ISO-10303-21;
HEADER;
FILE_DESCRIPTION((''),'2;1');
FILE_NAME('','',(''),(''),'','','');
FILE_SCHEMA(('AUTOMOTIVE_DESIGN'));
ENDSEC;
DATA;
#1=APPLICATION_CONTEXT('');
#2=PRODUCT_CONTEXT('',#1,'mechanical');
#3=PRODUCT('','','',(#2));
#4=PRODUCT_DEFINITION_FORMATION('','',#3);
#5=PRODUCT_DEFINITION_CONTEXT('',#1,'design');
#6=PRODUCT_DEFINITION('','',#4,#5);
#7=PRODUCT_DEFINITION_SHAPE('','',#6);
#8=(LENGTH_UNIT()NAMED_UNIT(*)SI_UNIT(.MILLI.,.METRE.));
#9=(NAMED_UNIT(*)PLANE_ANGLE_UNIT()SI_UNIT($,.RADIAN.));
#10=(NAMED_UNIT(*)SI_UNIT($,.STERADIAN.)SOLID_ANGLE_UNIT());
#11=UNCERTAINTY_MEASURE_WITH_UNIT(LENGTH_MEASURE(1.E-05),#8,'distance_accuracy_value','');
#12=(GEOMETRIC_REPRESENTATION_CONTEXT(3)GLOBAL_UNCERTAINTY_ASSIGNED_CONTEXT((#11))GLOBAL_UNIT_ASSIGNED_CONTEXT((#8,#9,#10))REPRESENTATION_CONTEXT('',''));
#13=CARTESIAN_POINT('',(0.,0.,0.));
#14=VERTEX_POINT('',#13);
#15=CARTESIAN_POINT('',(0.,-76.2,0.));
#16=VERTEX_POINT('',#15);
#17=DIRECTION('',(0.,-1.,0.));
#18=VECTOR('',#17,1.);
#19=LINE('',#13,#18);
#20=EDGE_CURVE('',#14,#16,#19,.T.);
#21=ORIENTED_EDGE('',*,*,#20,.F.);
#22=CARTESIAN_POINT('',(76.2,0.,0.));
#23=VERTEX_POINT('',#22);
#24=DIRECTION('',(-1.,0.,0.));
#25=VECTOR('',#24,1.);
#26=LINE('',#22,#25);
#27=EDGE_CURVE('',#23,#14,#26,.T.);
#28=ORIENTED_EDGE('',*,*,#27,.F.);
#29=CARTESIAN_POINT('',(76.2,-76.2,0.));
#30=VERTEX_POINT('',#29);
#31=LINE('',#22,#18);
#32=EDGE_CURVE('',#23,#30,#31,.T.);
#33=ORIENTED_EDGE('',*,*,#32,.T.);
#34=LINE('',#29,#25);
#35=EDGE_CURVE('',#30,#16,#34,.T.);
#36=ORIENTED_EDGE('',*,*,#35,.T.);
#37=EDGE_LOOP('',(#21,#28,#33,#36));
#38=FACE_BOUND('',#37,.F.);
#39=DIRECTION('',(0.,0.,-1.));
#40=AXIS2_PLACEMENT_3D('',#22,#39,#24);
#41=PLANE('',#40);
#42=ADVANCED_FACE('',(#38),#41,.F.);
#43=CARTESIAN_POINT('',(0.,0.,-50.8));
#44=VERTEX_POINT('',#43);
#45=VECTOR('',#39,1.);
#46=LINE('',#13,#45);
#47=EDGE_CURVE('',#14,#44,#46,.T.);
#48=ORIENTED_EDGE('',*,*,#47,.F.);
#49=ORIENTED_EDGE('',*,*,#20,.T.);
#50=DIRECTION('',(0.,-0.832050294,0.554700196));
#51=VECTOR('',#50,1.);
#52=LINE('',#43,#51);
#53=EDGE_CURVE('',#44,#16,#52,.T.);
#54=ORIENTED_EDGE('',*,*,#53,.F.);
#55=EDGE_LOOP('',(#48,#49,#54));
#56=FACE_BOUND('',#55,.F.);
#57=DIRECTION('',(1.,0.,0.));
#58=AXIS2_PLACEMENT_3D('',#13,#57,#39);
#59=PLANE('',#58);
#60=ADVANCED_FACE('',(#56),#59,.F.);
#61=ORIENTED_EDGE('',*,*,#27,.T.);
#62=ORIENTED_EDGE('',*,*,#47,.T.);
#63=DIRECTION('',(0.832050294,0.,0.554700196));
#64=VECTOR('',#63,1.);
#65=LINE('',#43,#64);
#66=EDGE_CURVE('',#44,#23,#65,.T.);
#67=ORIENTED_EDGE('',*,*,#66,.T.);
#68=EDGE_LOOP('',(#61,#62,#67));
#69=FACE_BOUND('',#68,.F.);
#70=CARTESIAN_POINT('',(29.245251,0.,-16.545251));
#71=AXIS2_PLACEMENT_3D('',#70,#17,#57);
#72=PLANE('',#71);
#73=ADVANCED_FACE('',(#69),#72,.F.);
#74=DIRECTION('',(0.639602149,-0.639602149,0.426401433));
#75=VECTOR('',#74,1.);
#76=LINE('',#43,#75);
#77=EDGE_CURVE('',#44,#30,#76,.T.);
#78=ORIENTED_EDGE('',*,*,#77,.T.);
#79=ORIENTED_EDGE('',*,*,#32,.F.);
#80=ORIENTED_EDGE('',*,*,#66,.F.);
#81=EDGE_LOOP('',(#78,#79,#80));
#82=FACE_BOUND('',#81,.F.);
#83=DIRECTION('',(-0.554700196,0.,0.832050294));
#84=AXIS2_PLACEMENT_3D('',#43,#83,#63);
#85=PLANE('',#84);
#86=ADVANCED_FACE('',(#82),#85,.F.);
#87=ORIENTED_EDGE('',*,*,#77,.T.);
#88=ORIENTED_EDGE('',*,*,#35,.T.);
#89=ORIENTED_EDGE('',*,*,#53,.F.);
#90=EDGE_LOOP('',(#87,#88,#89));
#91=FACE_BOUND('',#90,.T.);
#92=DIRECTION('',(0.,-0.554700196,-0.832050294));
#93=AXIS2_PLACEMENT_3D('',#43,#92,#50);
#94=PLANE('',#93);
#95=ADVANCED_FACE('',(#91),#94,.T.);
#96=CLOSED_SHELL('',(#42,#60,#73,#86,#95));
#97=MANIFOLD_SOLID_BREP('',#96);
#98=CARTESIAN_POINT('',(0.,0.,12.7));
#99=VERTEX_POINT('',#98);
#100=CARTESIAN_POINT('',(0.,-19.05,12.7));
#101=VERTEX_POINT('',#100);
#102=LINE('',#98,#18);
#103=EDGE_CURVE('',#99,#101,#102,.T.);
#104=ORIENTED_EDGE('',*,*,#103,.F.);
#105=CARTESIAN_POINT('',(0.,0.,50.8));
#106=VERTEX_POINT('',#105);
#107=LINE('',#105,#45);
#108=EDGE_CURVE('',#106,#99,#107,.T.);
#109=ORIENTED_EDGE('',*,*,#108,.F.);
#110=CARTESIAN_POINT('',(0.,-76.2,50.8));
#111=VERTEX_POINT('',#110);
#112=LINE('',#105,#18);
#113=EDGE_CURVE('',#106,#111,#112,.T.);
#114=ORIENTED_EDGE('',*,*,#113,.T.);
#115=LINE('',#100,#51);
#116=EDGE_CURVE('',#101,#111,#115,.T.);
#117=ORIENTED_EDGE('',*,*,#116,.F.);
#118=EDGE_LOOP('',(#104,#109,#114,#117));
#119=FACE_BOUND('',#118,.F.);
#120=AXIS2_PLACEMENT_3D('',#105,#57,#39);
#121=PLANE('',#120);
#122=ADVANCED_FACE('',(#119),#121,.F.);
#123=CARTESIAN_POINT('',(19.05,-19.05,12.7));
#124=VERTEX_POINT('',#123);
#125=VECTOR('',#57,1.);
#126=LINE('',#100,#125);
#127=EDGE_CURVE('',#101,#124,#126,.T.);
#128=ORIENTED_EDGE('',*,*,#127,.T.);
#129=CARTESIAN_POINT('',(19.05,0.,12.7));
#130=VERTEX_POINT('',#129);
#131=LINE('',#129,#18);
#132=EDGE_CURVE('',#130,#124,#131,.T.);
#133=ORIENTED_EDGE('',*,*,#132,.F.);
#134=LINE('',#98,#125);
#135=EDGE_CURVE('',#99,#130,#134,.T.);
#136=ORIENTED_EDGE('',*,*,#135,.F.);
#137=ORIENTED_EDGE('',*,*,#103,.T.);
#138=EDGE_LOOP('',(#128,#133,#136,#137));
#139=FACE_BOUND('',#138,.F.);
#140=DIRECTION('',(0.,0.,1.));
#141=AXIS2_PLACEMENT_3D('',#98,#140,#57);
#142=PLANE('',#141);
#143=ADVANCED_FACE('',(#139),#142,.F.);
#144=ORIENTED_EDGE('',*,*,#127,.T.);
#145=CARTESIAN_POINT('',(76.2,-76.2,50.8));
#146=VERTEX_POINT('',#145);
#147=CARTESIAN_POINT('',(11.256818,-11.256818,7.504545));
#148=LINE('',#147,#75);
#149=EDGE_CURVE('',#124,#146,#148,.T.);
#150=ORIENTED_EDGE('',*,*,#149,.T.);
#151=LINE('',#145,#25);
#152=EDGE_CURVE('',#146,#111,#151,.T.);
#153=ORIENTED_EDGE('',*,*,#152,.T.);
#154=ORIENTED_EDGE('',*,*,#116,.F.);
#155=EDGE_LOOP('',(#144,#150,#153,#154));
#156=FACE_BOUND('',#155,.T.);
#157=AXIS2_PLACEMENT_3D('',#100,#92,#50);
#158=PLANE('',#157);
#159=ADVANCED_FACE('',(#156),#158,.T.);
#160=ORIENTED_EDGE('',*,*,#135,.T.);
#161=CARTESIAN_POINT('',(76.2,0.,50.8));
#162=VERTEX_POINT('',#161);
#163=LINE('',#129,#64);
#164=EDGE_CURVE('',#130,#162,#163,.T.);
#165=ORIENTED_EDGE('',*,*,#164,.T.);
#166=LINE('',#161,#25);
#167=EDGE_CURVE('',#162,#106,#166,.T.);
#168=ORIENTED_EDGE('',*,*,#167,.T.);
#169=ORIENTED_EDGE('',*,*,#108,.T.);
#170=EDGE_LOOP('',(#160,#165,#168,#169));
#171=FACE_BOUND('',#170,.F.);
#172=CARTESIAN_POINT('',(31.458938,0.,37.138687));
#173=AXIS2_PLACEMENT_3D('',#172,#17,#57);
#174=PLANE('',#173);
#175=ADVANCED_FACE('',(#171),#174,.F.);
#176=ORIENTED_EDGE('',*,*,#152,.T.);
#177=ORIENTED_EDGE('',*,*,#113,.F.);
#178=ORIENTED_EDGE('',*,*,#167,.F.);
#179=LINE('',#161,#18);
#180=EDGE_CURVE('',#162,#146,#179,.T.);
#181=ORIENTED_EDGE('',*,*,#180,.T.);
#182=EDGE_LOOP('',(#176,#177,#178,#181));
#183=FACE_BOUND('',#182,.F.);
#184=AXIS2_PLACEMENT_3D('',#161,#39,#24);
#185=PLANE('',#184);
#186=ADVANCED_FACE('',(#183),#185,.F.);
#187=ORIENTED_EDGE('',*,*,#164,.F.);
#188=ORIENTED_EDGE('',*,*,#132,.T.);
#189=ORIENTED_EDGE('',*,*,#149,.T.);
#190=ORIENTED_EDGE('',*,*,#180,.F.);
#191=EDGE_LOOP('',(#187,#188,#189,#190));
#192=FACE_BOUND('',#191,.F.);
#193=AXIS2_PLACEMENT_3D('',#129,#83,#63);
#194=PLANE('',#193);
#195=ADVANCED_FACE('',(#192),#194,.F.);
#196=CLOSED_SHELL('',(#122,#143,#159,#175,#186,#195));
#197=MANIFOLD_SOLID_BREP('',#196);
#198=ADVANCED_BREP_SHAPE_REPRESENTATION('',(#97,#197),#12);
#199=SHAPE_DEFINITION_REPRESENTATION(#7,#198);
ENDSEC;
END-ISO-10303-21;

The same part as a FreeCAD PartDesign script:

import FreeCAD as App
import Part
import Sketcher
from FreeCAD import Vector
Q = App.Units.Quantity

doc = App.newDocument("Part")
params = doc.addObject("Spreadsheet::Sheet", "Params")
for row, (alias, value) in enumerate([
    ("sketch1_width", "3 in"),
    ("sketch1_height", "1.5 in"),
    ("sketch1_width2", "0.75 in"),
    ("pad1_length", "3 in"),
    ("sketch2_width", "3 in"),
    ("sketch2_height", "2 in"),
    ("pad2_length", "3 in"),
    ("sketch3_width", "3 in"),
    ("sketch3_height", "2 in"),
    ("sketch3_height2", "1.5 in"),
    ("pad3_length", "76.201 mm"),
], start=1):
    params.set(f"A{row}", alias)
    params.set(f"B{row}", "=" + value)
    params.setAlias(f"B{row}", alias)

body = doc.addObject("PartDesign::Body", "Body")

# Sketch on XZ plane
sketch1 = body.newObject("Sketcher::SketchObject", "Sketch")
sketch1.AttachmentSupport = (doc.getObject("XZ_Plane"), [""])
sketch1.MapMode = "FlatFace"
sketch1.addGeometry([
    Part.LineSegment(Vector(19, 13, 0), Vector(76, 51, 0)),
    Part.LineSegment(Vector(76, 51, 0), Vector(0, 51, 0)),
    Part.LineSegment(Vector(0, 51, 0), Vector(0, 13, 0)),
    Part.LineSegment(Vector(0, 13, 0), Vector(19, 13, 0)),
], False)
sketch1.addConstraint([
    Sketcher.Constraint("Coincident", 0, 2, 1, 1),
    Sketcher.Constraint("Coincident", 1, 2, 2, 1),
    Sketcher.Constraint("Coincident", 2, 2, 3, 1),
    Sketcher.Constraint("Coincident", 3, 2, 0, 1),
    Sketcher.Constraint("Horizontal", 1),
    Sketcher.Constraint("Vertical", 2),
    Sketcher.Constraint("Horizontal", 3),
    Sketcher.Constraint("PointOnObject", 1, 2, -2),
    Sketcher.Constraint("DistanceX", 1, 2, 1, 1, Q("3 in")),
    Sketcher.Constraint("DistanceY", 2, 2, 2, 1, Q("1.5 in")),
    Sketcher.Constraint("DistanceY", -1, 1, 0, 2, Q("2 in")),
    Sketcher.Constraint("DistanceX", 3, 1, 3, 2, Q("0.75 in")),
])
sketch1.setExpression("Constraints[8]", "Params.sketch1_width")
sketch1.setExpression("Constraints[9]", "Params.sketch1_height")
sketch1.setExpression("Constraints[11]", "Params.sketch1_width2")
pad1 = body.newObject("PartDesign::Pad", "Pad")
pad1.Profile = sketch1
pad1.setExpression("Length", "Params.pad1_length")
body2 = doc.addObject("PartDesign::Body", "Body001")

# Sketch on XZ plane
sketch2 = body2.newObject("Sketcher::SketchObject", "Sketch001")
sketch2.AttachmentSupport = (doc.getObject("XZ_Plane001"), [""])
sketch2.MapMode = "FlatFace"
sketch2.addGeometry([
    Part.LineSegment(Vector(0, 0, 0), Vector(0, -51, 0)),
    Part.LineSegment(Vector(0, -51, 0), Vector(76, 0, 0)),
    Part.LineSegment(Vector(76, 0, 0), Vector(0, 0, 0)),
], False)
sketch2.addConstraint([
    Sketcher.Constraint("Coincident", 0, 2, 1, 1),
    Sketcher.Constraint("Coincident", 1, 2, 2, 1),
    Sketcher.Constraint("Coincident", 2, 2, 0, 1),
    Sketcher.Constraint("Vertical", 0),
    Sketcher.Constraint("Horizontal", 2),
    Sketcher.Constraint("Coincident", 2, 2, -1, 1),
    Sketcher.Constraint("DistanceX", 2, 2, 2, 1, Q("3 in")),
    Sketcher.Constraint("DistanceY", 0, 2, 0, 1, Q("2 in")),
])
sketch2.setExpression("Constraints[6]", "Params.sketch2_width")
sketch2.setExpression("Constraints[7]", "Params.sketch2_height")
pad2 = body2.newObject("PartDesign::Pad", "Pad001")
pad2.Profile = sketch2
pad2.setExpression("Length", "Params.pad2_length")
body3 = doc.addObject("PartDesign::Body", "Body002")
body3.AllowCompound = True

# Sketch on YZ plane
sketch3 = body3.newObject("Sketcher::SketchObject", "Sketch002")
sketch3.AttachmentSupport = (doc.getObject("YZ_Plane002"), [""])
sketch3.MapMode = "FlatFace"
sketch3.addGeometry([
    Part.LineSegment(Vector(-19, 13, 0), Vector(-76, 51, 0)),  # 0
    Part.LineSegment(Vector(-76, 51, 0), Vector(-76, 13, 0)),  # 1
    Part.LineSegment(Vector(-76, 13, 0), Vector(-19, 13, 0)),  # 2
    Part.LineSegment(Vector(-76, -51, 0), Vector(0, -51, 0)),  # 3
    Part.LineSegment(Vector(0, -51, 0), Vector(-76, 0, 0)),  # 4
    Part.LineSegment(Vector(-76, 0, 0), Vector(-76, -51, 0)),  # 5
], False)
sketch3.addConstraint([
    Sketcher.Constraint("Coincident", 0, 2, 1, 1),
    Sketcher.Constraint("Coincident", 1, 2, 2, 1),
    Sketcher.Constraint("Coincident", 2, 2, 0, 1),
    Sketcher.Constraint("Coincident", 3, 2, 4, 1),
    Sketcher.Constraint("Coincident", 4, 2, 5, 1),
    Sketcher.Constraint("Coincident", 5, 2, 3, 1),
    Sketcher.Constraint("Vertical", 1),
    Sketcher.Constraint("Horizontal", 2),
    Sketcher.Constraint("Horizontal", 3),
    Sketcher.Constraint("Vertical", 5),
    Sketcher.Constraint("Symmetric", 0, 2, 5, 2, -1),
    Sketcher.Constraint("PointOnObject", 3, 2, -2),
    Sketcher.Constraint("PointOnObject", 4, 2, -1),
    Sketcher.Constraint("Parallel", 0, 4),
    Sketcher.Constraint("DistanceX", 3, 1, 3, 2, Q("3 in")),
    Sketcher.Constraint("DistanceY", 5, 2, 5, 1, Q("2 in")),
    Sketcher.Constraint("DistanceY", 1, 2, 1, 1, Q("1.5 in")),
])
sketch3.setExpression("Constraints[14]", "Params.sketch3_width")
sketch3.setExpression("Constraints[15]", "Params.sketch3_height")
sketch3.setExpression("Constraints[16]", "Params.sketch3_height2")
pad3 = body3.newObject("PartDesign::Pad", "Pad002")
pad3.Profile = sketch3
pad3.setExpression("Length", "Params.pad3_length")
doc.recompute()

body4 = doc.addObject("PartDesign::Body", "Body003")
body4.BaseFeature = body3
boolean = body.newObject("PartDesign::Boolean", "Boolean")
boolean.Type = "Cut"
boolean.addObjects([body4])
doc.recompute()

boolean2 = body2.newObject("PartDesign::Boolean", "Boolean001")
boolean2.Type = "Cut"
boolean2.addObjects([body3])

doc.recompute()
